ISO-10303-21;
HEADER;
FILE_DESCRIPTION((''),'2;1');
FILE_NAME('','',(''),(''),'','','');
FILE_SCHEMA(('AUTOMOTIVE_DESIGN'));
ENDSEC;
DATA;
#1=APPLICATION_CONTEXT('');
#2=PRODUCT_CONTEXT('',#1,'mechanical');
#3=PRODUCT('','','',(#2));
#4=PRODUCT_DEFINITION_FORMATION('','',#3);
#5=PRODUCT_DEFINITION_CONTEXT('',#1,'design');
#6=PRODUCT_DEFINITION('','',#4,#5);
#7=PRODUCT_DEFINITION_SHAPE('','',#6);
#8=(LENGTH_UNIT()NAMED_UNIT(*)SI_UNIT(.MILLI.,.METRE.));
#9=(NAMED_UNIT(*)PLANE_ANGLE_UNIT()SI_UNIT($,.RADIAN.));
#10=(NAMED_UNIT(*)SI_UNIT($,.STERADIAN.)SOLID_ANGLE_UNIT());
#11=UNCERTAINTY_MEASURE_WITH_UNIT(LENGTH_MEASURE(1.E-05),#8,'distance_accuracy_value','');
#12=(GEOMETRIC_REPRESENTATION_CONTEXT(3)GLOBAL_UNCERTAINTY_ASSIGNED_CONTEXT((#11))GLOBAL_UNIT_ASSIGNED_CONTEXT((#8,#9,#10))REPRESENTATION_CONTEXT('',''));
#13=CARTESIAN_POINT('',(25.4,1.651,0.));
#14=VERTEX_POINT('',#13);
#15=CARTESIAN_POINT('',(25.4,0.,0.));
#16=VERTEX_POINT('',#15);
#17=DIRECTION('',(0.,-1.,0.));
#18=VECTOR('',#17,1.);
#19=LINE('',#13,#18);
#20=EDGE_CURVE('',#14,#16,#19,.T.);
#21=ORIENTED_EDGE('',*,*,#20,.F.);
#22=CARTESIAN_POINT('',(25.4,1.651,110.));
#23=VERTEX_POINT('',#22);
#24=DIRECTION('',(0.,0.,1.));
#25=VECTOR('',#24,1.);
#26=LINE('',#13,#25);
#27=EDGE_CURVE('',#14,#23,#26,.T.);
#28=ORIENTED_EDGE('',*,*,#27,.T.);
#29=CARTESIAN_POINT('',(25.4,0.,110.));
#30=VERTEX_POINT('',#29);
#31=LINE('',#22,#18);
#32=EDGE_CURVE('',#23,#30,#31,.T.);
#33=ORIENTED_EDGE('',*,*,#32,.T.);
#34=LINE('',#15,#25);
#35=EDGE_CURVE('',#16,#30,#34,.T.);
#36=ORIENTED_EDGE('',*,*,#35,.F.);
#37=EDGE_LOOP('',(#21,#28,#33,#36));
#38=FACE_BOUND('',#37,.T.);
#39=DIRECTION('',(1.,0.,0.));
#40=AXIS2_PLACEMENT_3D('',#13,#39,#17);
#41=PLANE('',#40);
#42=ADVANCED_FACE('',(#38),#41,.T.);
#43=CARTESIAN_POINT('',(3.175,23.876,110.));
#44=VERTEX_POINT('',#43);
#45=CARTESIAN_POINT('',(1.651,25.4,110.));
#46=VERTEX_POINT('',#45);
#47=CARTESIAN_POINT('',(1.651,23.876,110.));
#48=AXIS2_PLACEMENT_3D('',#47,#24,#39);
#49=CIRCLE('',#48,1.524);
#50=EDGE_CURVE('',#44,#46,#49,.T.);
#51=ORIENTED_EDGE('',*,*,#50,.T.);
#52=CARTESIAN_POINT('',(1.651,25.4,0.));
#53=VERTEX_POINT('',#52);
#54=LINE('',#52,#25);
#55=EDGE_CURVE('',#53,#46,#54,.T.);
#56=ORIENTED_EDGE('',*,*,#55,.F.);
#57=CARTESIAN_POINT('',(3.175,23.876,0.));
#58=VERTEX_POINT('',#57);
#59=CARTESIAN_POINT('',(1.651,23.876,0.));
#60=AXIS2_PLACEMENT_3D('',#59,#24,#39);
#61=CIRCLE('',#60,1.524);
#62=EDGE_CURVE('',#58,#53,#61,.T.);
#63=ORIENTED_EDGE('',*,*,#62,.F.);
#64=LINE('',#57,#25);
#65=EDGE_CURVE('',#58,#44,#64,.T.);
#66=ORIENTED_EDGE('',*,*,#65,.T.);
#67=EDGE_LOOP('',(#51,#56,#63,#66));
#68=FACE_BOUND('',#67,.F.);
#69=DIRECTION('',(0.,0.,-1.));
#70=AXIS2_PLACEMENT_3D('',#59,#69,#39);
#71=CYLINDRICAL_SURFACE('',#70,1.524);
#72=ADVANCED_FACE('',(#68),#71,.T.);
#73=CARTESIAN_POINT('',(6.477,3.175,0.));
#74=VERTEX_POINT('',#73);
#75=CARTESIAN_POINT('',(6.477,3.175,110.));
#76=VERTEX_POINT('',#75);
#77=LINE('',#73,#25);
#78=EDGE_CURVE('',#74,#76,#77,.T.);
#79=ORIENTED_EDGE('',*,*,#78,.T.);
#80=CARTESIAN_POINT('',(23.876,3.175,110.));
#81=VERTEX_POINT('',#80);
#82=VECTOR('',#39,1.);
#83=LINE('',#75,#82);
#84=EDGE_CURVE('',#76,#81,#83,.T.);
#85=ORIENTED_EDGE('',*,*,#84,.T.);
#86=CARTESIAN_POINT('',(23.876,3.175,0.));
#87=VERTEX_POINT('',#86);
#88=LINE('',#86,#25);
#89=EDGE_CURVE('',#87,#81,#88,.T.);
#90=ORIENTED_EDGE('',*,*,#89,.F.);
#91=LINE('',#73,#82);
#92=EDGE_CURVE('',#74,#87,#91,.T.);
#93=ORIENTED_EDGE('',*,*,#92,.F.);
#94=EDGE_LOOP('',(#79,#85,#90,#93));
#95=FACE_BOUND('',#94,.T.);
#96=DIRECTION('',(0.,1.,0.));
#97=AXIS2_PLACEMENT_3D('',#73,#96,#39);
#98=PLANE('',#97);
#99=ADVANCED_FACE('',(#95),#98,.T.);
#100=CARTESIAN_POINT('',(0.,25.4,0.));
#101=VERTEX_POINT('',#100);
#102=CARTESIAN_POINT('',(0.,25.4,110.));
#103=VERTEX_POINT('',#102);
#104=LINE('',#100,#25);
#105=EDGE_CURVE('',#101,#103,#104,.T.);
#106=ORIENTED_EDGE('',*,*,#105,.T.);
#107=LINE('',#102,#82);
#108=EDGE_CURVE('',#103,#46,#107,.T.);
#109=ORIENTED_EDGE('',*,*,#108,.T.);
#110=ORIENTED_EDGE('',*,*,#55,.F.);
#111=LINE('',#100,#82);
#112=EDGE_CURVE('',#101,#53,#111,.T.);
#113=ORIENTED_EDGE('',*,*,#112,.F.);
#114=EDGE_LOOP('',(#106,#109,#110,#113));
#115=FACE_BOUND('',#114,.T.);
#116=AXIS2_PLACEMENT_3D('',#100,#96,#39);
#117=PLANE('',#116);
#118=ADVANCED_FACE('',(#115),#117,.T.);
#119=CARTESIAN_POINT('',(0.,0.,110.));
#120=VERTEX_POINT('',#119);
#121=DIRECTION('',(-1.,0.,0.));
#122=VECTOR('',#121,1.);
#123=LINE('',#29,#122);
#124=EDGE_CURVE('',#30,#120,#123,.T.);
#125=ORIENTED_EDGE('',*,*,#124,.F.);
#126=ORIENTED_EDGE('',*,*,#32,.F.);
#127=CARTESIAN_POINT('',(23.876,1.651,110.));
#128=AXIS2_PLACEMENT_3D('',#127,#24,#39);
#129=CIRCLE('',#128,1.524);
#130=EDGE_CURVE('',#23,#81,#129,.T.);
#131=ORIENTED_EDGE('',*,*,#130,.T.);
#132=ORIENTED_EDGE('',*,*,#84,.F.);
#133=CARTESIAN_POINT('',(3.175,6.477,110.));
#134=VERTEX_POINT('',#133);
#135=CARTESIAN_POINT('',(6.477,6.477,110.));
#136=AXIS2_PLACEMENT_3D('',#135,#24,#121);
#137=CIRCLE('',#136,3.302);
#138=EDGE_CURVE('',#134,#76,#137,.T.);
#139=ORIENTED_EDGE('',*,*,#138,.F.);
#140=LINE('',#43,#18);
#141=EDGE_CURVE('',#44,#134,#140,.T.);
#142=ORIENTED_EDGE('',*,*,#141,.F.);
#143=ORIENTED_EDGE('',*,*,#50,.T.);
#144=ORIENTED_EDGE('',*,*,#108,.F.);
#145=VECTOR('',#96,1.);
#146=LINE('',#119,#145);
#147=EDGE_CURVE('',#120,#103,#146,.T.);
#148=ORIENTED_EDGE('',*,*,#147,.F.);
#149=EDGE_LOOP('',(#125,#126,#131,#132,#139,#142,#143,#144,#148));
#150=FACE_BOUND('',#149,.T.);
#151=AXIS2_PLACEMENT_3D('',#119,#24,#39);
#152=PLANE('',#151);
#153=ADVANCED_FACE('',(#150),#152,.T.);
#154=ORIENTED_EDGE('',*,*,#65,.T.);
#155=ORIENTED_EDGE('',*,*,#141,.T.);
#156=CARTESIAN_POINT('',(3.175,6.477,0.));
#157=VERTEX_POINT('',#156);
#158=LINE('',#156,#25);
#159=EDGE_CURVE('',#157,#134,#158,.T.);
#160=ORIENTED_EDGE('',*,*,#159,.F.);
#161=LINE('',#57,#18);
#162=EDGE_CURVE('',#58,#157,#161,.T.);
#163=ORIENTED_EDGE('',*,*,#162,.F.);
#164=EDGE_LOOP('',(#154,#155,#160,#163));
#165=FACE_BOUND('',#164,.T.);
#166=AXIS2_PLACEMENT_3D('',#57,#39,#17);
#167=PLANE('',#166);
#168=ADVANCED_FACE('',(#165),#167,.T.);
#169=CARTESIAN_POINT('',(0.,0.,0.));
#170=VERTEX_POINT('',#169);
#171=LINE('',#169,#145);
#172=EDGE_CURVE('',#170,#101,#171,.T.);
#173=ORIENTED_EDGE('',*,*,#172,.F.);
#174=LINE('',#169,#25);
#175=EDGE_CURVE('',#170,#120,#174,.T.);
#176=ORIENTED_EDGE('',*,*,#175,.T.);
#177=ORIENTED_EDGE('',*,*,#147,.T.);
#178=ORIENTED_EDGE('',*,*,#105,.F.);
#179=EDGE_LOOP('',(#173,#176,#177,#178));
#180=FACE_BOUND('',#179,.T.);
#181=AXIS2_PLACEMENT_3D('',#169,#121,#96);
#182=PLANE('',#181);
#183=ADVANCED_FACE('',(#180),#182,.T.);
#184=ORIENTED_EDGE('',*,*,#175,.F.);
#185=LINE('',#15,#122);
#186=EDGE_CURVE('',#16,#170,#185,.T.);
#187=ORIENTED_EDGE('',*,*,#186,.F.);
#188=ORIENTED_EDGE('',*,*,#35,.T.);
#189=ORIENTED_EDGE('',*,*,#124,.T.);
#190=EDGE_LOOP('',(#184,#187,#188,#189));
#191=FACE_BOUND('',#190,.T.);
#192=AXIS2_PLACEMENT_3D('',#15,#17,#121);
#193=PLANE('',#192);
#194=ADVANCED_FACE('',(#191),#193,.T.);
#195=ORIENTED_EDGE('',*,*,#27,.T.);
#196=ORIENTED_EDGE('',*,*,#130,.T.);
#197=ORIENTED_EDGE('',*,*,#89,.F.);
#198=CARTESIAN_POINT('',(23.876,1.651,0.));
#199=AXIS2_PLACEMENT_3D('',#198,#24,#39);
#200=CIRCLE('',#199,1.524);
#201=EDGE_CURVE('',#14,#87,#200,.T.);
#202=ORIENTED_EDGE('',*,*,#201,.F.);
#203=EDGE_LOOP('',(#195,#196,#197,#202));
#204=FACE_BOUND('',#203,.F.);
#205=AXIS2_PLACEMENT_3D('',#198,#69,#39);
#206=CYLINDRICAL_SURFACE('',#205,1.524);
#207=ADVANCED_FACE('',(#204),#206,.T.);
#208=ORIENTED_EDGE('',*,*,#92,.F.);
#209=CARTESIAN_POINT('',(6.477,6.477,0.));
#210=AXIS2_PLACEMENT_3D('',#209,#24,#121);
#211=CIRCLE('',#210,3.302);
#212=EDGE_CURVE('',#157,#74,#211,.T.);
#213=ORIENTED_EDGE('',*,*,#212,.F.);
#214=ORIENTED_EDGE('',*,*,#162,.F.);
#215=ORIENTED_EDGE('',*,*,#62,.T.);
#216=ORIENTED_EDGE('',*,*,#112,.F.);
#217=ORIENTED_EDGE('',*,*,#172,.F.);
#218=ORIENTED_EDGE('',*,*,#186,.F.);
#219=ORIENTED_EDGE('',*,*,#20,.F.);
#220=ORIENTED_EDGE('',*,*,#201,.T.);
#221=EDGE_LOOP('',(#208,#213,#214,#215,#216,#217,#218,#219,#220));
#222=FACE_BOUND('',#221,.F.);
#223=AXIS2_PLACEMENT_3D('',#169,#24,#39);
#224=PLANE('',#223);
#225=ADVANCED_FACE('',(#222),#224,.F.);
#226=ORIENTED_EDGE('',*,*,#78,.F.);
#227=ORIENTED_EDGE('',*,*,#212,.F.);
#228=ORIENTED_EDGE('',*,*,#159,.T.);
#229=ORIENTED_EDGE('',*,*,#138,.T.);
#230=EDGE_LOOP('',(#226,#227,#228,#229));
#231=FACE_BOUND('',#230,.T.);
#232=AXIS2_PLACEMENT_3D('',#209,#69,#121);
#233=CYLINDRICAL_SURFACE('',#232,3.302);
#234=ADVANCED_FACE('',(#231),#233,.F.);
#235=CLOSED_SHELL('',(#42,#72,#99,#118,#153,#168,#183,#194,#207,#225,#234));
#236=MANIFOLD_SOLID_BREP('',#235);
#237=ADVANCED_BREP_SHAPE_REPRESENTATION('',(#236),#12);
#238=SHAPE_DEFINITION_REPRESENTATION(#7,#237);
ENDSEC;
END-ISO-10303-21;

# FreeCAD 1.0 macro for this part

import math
import FreeCAD as App
import Part
import Sketcher

V = App.Vector
Q = App.Units.Quantity

doc = App.newDocument("Part")
body = doc.addObject("PartDesign::Body", "Body")

# Sketch on XY plane
sketch1 = doc.addObject("Sketcher::SketchObject", "Sketch")
body.addObject(sketch1)
sketch1.AttachmentSupport = (doc.XY_Plane, [""])
sketch1.MapMode = "FlatFace"
sketch1.addGeometry([
    Part.LineSegment(V(0, 0, 0), V(25.4, 0, 0)),  # 0
    Part.LineSegment(V(25.4, 0, 0), V(25.4, 1.651, 0)),  # 1
    Part.ArcOfCircle(Part.Circle(V(23.876, 1.651, 0), V(0, 0, 1), 1.524), math.radians(0), math.radians(90)),  # 2
    Part.LineSegment(V(23.876, 3.175, 0), V(6.477, 3.175, 0)),  # 3
    Part.ArcOfCircle(Part.Circle(V(6.477, 6.477, 0), V(0, 0, 1), 3.302), math.radians(180), math.radians(270)),  # 4
    Part.LineSegment(V(3.175, 6.477, 0), V(3.175, 23.876, 0)),  # 5
    Part.ArcOfCircle(Part.Circle(V(1.651, 23.876, 0), V(0, 0, 1), 1.524), math.radians(0), math.radians(90)),  # 6
    Part.LineSegment(V(1.651, 25.4, 0), V(0, 25.4, 0)),  # 7
    Part.LineSegment(V(0, 25.4, 0), V(0, 0, 0)),  # 8
], False)
sketch1.addConstraint([
    Sketcher.Constraint("Coincident", 0, 2, 1, 1),
    Sketcher.Constraint("Tangent", 1, 2, 2, 1),
    Sketcher.Constraint("Tangent", 2, 2, 3, 1),
    Sketcher.Constraint("Tangent", 3, 2, 4, 2),
    Sketcher.Constraint("Tangent", 4, 1, 5, 1),
    Sketcher.Constraint("Tangent", 5, 2, 6, 1),
    Sketcher.Constraint("Tangent", 6, 2, 7, 1),
    Sketcher.Constraint("Coincident", 7, 2, 8, 1),
    Sketcher.Constraint("Coincident", 8, 2, 0, 1),
    Sketcher.Constraint("Horizontal", 0),
    Sketcher.Constraint("Vertical", 1),
    Sketcher.Constraint("Horizontal", 3),
    Sketcher.Constraint("Vertical", 5),
    Sketcher.Constraint("Horizontal", 7),
    Sketcher.Constraint("Vertical", 8),
    Sketcher.Constraint("Coincident", 8, 2, -1, 1),
    Sketcher.Constraint("Equal", 2, 6),
    Sketcher.Constraint("Equal", 7, 1),
    Sketcher.Constraint("Equal", 3, 5),
    Sketcher.Constraint("DistanceX", 0, 1, 0, 2, Q("1 in")),
    Sketcher.Constraint("Radius", 2, Q("0.06 in")),
    Sketcher.Constraint("Radius", 4, Q("0.13 in")),
    Sketcher.Constraint("DistanceY", -1, 1, 2, 2, Q("0.125 in")),
])
pad1 = doc.addObject("PartDesign::Pad", "Pad")
body.addObject(pad1)
pad1.Profile = sketch1
pad1.Length = Q("4.3307087 in")

doc.recompute()
